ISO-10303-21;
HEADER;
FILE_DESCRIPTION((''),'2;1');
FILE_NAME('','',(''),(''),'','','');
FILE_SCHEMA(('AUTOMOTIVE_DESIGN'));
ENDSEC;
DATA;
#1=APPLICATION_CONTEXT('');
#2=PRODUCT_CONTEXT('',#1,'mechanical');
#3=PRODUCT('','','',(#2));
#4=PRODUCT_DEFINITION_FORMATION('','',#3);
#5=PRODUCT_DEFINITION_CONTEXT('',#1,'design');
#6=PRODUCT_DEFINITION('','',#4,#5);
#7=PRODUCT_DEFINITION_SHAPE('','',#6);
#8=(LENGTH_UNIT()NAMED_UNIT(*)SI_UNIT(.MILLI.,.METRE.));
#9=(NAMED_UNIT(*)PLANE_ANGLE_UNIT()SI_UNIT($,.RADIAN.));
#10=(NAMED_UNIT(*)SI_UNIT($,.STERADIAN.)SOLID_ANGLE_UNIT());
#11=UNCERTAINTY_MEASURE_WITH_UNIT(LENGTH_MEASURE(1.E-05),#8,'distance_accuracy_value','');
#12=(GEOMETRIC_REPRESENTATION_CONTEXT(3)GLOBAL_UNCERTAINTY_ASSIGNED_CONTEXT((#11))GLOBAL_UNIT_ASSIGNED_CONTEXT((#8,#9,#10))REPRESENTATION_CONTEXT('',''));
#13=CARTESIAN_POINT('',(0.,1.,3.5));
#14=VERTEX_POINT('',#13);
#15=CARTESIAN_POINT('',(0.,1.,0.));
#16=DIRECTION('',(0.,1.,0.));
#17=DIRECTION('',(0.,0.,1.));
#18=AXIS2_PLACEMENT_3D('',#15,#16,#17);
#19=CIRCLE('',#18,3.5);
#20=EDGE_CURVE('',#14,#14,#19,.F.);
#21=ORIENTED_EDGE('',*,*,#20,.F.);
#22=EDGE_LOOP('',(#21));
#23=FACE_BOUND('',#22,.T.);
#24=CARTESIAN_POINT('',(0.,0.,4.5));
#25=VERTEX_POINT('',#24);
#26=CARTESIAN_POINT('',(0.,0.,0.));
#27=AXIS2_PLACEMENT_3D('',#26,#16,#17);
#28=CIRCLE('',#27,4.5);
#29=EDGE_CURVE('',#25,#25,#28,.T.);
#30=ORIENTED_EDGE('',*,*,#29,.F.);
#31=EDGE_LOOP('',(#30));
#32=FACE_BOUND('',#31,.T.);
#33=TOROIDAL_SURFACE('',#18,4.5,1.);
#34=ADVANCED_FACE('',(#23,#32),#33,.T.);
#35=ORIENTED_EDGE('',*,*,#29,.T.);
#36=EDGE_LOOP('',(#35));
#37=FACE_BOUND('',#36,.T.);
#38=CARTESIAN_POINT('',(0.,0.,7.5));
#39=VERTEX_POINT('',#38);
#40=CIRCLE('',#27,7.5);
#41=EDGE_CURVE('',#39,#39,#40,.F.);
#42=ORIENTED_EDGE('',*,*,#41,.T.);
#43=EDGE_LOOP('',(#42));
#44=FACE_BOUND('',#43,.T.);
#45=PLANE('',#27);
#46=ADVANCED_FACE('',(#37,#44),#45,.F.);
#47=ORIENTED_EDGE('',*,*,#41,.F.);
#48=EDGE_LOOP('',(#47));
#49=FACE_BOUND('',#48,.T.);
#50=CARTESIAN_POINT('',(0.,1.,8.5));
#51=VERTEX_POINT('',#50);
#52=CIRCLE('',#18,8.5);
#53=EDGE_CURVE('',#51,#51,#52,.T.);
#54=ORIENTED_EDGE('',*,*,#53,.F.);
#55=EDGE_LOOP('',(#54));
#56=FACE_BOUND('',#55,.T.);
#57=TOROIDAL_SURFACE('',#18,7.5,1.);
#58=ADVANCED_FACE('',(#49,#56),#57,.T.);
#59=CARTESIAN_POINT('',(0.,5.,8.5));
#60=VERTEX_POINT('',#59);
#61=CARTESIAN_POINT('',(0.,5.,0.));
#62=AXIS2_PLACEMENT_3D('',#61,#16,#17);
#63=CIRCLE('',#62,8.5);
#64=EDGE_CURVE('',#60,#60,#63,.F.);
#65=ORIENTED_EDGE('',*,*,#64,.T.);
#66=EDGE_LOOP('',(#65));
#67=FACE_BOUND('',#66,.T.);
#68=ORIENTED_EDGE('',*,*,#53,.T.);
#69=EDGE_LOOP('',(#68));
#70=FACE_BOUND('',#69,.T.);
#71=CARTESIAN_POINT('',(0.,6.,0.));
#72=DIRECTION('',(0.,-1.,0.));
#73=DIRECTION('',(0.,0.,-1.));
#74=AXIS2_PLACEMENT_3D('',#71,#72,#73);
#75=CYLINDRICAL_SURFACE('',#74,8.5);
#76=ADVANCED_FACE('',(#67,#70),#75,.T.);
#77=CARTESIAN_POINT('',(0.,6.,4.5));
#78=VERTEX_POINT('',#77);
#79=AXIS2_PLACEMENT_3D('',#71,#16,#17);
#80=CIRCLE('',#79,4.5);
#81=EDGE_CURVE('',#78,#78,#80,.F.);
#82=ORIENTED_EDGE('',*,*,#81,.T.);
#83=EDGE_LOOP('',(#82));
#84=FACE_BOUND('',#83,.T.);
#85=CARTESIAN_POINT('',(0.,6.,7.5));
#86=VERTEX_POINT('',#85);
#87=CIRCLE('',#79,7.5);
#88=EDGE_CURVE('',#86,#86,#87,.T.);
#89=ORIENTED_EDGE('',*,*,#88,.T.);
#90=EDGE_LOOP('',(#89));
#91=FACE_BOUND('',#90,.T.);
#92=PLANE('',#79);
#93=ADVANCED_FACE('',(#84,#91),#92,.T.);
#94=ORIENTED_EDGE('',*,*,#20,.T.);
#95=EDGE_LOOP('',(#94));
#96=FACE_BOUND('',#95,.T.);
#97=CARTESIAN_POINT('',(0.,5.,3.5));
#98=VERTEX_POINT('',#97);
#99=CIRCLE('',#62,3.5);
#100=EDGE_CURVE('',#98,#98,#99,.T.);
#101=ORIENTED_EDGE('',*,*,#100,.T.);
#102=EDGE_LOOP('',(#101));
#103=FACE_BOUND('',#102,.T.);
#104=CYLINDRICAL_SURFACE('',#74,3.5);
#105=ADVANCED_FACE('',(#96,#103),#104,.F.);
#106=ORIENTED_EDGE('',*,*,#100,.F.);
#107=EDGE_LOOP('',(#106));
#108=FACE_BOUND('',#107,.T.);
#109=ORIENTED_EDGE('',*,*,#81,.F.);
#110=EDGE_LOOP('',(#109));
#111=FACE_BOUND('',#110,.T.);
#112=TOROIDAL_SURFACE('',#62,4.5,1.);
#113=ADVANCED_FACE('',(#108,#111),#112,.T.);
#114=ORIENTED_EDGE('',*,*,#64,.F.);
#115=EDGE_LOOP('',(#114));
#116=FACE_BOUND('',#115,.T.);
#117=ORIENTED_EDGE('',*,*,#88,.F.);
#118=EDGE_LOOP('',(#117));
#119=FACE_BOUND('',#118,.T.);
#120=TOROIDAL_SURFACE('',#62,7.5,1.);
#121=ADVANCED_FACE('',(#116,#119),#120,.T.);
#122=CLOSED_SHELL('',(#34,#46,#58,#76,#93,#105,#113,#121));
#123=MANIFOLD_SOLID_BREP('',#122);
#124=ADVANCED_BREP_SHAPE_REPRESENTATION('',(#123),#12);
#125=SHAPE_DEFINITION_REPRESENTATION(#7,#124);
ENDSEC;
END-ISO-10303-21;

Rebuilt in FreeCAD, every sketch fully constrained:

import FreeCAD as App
import Part
import Sketcher


def edges_at(feature, points):
    """Names of the edges that pass closest to the given points."""
    edges = feature.Shape.Edges
    near = lambda p: min(range(len(edges)), key=lambda i: edges[i].distToShape(Part.Vertex(*p))[0])
    return sorted({f"Edge{near(p) + 1}" for p in points})

doc = App.newDocument("Part")
body = doc.addObject("PartDesign::Body", "Body")

# Sketch on XZ plane
sketch1 = body.newObject("Sketcher::SketchObject", "Sketch")
sketch1.AttachmentSupport = (doc.getObject("XZ_Plane"), [""])
sketch1.MapMode = "FlatFace"
sketch1.addGeometry([
    Part.Circle(App.Vector(0, 0, 0), App.Vector(0, 0, 1), 8.5),
    Part.Circle(App.Vector(0, 0, 0), App.Vector(0, 0, 1), 3.5),
], False)
sketch1.addConstraint([
    Sketcher.Constraint("Coincident", 0, 3, -1, 1),
    Sketcher.Constraint("Coincident", 1, 3, -1, 1),
    Sketcher.Constraint("Diameter", 0, 17.0),
    Sketcher.Constraint("Diameter", 1, 7.0),
])
pad1 = body.newObject("PartDesign::Pad", "Pad")
pad1.Profile = sketch1
pad1.Length = 6
pad1.Reversed = True
doc.recompute()

fillet = body.newObject("PartDesign::Fillet", "Fillet")
fillet.Base = (pad1, edges_at(pad1, [(0, 6, -8.5), (0, 0, -3.5), (0, 6, -3.5)]))
fillet.Radius = 1
doc.recompute()

fillet2 = body.newObject("PartDesign::Fillet", "Fillet001")
fillet2.Base = (fillet, edges_at(fillet, [(0, 0, -8.5)]))
fillet2.Radius = 1

doc.recompute()
